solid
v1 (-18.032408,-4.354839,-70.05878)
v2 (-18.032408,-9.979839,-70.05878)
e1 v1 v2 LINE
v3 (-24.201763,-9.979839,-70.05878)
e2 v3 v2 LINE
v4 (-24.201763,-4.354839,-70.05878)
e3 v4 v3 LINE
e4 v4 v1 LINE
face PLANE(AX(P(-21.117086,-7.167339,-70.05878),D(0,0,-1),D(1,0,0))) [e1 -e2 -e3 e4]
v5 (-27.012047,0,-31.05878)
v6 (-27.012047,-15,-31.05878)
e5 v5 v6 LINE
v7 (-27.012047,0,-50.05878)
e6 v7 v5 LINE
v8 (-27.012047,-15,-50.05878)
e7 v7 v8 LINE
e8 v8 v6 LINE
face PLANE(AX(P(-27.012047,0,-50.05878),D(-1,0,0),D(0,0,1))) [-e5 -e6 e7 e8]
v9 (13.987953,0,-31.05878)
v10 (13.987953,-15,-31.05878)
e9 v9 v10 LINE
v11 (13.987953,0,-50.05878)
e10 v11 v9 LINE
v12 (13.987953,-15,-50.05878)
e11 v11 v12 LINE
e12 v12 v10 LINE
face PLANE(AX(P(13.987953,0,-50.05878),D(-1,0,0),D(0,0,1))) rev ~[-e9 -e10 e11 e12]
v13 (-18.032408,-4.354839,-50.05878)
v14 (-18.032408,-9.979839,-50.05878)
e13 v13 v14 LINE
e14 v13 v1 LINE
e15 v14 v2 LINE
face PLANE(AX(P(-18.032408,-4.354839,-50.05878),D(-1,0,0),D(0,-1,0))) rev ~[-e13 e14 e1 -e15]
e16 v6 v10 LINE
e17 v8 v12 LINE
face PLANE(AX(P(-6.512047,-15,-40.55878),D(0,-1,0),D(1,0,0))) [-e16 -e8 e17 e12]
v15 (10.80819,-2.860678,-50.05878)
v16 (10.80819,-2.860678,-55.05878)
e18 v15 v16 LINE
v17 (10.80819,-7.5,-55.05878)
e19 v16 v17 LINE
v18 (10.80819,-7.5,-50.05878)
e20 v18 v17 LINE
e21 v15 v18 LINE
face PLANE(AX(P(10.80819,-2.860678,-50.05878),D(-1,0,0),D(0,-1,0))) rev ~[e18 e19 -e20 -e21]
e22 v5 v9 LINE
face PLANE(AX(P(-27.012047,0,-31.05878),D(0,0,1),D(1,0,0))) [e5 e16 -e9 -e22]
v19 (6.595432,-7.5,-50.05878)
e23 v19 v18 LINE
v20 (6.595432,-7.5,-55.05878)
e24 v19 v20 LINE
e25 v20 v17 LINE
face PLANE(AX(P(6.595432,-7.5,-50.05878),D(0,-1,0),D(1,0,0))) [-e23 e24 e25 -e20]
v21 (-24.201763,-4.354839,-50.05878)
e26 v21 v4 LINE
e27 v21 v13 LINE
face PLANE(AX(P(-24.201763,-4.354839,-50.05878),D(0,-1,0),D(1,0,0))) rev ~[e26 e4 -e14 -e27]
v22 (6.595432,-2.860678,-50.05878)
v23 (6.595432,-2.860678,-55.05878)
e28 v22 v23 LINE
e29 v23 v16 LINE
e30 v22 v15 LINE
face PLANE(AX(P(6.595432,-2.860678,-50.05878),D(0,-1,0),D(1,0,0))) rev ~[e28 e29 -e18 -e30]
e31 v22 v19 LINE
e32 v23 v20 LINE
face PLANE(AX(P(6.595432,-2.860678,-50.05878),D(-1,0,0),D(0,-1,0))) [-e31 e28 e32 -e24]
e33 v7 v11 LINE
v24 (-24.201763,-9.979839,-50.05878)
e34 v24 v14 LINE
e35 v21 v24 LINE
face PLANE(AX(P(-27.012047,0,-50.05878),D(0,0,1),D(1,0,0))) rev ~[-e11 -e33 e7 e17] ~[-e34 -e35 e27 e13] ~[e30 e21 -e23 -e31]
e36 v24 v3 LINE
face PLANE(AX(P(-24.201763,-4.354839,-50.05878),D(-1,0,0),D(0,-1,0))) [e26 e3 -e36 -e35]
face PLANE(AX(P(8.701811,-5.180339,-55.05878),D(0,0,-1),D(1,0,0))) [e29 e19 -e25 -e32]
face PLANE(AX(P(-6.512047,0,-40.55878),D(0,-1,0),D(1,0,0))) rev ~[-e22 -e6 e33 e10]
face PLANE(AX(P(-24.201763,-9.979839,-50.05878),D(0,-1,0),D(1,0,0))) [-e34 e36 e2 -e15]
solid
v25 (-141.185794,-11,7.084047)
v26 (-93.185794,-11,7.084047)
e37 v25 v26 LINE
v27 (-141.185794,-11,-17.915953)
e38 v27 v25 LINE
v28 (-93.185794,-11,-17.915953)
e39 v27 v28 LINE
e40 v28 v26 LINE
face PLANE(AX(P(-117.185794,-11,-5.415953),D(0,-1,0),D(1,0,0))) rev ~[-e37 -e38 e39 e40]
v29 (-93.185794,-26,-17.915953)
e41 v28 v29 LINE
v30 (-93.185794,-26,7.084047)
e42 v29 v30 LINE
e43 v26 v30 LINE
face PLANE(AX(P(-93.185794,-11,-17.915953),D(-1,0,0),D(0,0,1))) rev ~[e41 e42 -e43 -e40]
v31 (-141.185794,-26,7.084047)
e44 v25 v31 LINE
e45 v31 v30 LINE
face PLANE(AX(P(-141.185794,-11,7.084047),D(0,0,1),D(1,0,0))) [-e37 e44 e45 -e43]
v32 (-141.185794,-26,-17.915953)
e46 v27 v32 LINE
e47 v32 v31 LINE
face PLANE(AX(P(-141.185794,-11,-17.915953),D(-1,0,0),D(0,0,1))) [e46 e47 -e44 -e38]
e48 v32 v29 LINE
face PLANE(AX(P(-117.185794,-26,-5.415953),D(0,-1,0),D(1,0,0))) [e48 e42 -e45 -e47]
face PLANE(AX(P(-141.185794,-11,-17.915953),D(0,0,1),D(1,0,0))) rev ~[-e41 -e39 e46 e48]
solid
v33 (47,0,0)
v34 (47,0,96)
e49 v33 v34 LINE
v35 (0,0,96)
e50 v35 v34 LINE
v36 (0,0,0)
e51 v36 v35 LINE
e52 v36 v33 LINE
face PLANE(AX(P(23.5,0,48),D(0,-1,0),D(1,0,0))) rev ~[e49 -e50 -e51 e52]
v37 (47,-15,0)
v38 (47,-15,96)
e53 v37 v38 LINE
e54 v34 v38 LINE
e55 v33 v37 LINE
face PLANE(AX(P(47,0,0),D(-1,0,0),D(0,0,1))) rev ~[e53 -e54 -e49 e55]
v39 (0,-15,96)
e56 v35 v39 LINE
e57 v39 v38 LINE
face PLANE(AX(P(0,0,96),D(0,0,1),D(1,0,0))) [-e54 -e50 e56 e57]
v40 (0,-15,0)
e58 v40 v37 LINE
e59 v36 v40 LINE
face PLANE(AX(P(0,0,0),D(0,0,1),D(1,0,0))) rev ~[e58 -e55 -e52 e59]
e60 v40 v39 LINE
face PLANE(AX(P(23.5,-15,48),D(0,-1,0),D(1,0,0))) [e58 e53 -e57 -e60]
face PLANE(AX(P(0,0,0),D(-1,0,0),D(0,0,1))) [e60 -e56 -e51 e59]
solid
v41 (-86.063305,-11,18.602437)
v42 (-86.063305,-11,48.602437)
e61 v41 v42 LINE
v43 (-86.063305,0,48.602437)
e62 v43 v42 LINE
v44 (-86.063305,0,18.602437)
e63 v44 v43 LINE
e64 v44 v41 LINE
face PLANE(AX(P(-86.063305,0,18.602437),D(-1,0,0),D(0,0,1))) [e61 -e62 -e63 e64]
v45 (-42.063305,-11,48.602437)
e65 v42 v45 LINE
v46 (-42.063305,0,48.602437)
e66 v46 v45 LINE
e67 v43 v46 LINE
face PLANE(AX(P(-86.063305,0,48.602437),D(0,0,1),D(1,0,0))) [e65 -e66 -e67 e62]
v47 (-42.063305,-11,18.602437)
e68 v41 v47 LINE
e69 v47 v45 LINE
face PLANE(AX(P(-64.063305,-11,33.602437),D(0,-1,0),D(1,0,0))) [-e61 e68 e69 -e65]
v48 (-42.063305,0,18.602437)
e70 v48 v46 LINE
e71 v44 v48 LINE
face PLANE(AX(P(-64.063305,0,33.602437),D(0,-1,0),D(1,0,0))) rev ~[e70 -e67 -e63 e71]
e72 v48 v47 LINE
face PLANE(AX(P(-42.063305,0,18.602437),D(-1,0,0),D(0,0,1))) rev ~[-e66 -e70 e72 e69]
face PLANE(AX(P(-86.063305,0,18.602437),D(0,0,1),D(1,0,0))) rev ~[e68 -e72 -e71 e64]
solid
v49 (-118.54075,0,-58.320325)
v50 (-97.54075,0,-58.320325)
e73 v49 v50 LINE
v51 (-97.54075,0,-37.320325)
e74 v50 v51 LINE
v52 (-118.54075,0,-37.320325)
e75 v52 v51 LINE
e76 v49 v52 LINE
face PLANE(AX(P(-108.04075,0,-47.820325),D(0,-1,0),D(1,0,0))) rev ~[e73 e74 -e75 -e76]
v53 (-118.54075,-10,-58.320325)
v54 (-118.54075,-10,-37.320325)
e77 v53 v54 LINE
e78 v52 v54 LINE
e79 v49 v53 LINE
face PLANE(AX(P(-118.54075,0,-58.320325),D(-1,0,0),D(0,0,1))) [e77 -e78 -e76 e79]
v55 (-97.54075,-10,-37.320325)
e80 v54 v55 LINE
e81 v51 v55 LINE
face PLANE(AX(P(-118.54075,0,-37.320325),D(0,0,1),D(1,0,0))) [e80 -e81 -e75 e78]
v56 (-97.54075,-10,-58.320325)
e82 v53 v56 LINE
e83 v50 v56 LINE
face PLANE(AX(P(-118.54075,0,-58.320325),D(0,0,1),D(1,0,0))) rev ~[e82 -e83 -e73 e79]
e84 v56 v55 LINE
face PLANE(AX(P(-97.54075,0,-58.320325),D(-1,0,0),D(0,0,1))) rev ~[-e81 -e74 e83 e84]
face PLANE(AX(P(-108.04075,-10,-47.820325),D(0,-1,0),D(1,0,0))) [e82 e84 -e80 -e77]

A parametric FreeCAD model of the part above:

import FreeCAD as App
import Part
import Sketcher
from FreeCAD import Vector
Q = App.Units.Quantity


def add_polygon(sketch, points):
    """Adds a closed chain of lines whose ends are joined by coincident constraints."""
    first, n = sketch.GeometryCount, len(points)
    for a, b in zip(points, points[1:] + points[:1]):
        sketch.addGeometry(Part.LineSegment(App.Vector(*a, 0), App.Vector(*b, 0)), False)
    for i in range(n):
        sketch.addConstraint(Sketcher.Constraint("Coincident", first + i, 2, first + (i + 1) % n, 1))

doc = App.newDocument("Part")
body = doc.addObject("PartDesign::Body", "Body")

# Sketch on XZ plane
sketch1 = body.newObject("Sketcher::SketchObject", "Sketch")
sketch1.AttachmentSupport = (doc.getObject("XZ_Plane"), [""])
sketch1.MapMode = "FlatFace"
add_polygon(sketch1, [(0, 96), (0, 0), (47, 0), (47, 96)])  # lines 0-3
sketch1.addConstraint([
    Sketcher.Constraint("Vertical", 0),
    Sketcher.Constraint("Horizontal", 1),
    Sketcher.Constraint("Vertical", 2),
    Sketcher.Constraint("Horizontal", 3),
    Sketcher.Constraint("Coincident", 0, 2, -1, 1),
    Sketcher.Constraint("DistanceX", 1, 1, 1, 2, Q("47 mm")),
    Sketcher.Constraint("DistanceY", 0, 2, 0, 1, Q("96 mm")),
])
pad1 = body.newObject("PartDesign::Pad", "Pad")
pad1.Profile = sketch1
pad1.Length = 15
body2 = doc.addObject("PartDesign::Body", "Body001")

# Sketch on XZ plane
sketch2 = body2.newObject("Sketcher::SketchObject", "Sketch001")
sketch2.AttachmentSupport = (doc.getObject("XZ_Plane001"), [""])
sketch2.MapMode = "FlatFace"
add_polygon(sketch2, [(-86, 49), (-86, 19), (-42, 19), (-42, 49)])  # lines 0-3
sketch2.addConstraint([
    Sketcher.Constraint("Vertical", 0),
    Sketcher.Constraint("Horizontal", 1),
    Sketcher.Constraint("Vertical", 2),
    Sketcher.Constraint("Horizontal", 3),
    Sketcher.Constraint("DistanceX", 1, 1, 1, 2, Q("44 mm")),
    Sketcher.Constraint("DistanceY", 0, 2, 0, 1, Q("30 mm")),
    Sketcher.Constraint("DistanceX", 0, 2, -1, 1, Q("86.063305 mm")),
    Sketcher.Constraint("DistanceY", -1, 1, 0, 2, Q("18.602437 mm")),
])
pad2 = body2.newObject("PartDesign::Pad", "Pad001")
pad2.Profile = sketch2
pad2.Length = 11
body3 = doc.addObject("PartDesign::Body", "Body002")

# Sketch on XZ plane
sketch3 = body3.newObject("Sketcher::SketchObject", "Sketch002")
sketch3.AttachmentSupport = (doc.getObject("XZ_Plane002"), [""])
sketch3.MapMode = "FlatFace"
sketch3.AttachmentOffset = App.Placement(Vector(0, 0, 11), App.Rotation())
add_polygon(sketch3, [(-141, 7), (-141, -18), (-93, -18), (-93, 7)])  # lines 0-3
sketch3.addConstraint([
    Sketcher.Constraint("Vertical", 0),
    Sketcher.Constraint("Horizontal", 1),
    Sketcher.Constraint("Vertical", 2),
    Sketcher.Constraint("Horizontal", 3),
    Sketcher.Constraint("DistanceX", 1, 1, 1, 2, Q("48 mm")),
    Sketcher.Constraint("DistanceY", 0, 2, 0, 1, Q("25 mm")),
    Sketcher.Constraint("DistanceX", 0, 2, -1, 1, Q("141.185794 mm")),
    Sketcher.Constraint("DistanceY", 0, 2, -1, 1, Q("17.915953 mm")),
])
pad3 = body3.newObject("PartDesign::Pad", "Pad002")
pad3.Profile = sketch3
pad3.Length = 15
body4 = doc.addObject("PartDesign::Body", "Body003")

# Sketch on XZ plane
sketch4 = body4.newObject("Sketcher::SketchObject", "Sketch003")
sketch4.AttachmentSupport = (doc.getObject("XZ_Plane003"), [""])
sketch4.MapMode = "FlatFace"
add_polygon(sketch4, [(-119, -37), (-119, -58), (-98, -58), (-98, -37)])  # lines 0-3
sketch4.addConstraint([
    Sketcher.Constraint("Vertical", 0),
    Sketcher.Constraint("Horizontal", 1),
    Sketcher.Constraint("Vertical", 2),
    Sketcher.Constraint("Horizontal", 3),
    Sketcher.Constraint("Equal", 3, 0),
    Sketcher.Constraint("DistanceX", 1, 1, 1, 2, Q("21 mm")),
    Sketcher.Constraint("DistanceX", 0, 2, -1, 1, Q("118.54075 mm")),
    Sketcher.Constraint("DistanceY", 0, 2, -1, 1, Q("58.320325 mm")),
])
pad4 = body4.newObject("PartDesign::Pad", "Pad003")
pad4.Profile = sketch4
pad4.Length = 10
body5 = doc.addObject("PartDesign::Body", "Body004")

# Sketch on XZ plane
sketch5 = body5.newObject("Sketcher::SketchObject", "Sketch004")
sketch5.AttachmentSupport = (doc.getObject("XZ_Plane004"), [""])
sketch5.MapMode = "FlatFace"
add_polygon(sketch5, [(-27, -31), (-27, -50), (14, -50), (14, -31)])  # lines 0-3
sketch5.addConstraint([
    Sketcher.Constraint("Vertical", 0),
    Sketcher.Constraint("Horizontal", 1),
    Sketcher.Constraint("Vertical", 2),
    Sketcher.Constraint("Horizontal", 3),
    Sketcher.Constraint("DistanceX", 1, 1, 1, 2, Q("41 mm")),
    Sketcher.Constraint("DistanceY", 0, 2, 0, 1, Q("19 mm")),
    Sketcher.Constraint("DistanceY", 0, 2, -1, 1, Q("50.05878 mm")),
    Sketcher.Constraint("DistanceX", 0, 2, -1, 1, Q("27.012047 mm")),
])
pad5 = body5.newObject("PartDesign::Pad", "Pad004")
pad5.Profile = sketch5
pad5.Length = 15

# Sketch on XY plane
sketch6 = body5.newObject("Sketcher::SketchObject", "Sketch005")
sketch6.AttachmentSupport = (doc.getObject("XY_Plane004"), [""])
sketch6.MapMode = "FlatFace"
sketch6.AttachmentOffset = App.Placement(Vector(0, 0, -50.05878), App.Rotation())
add_polygon(sketch6, [(-24, -10), (-24, -4), (-18, -4), (-18, -10)])  # lines 0-3
sketch6.addConstraint([
    Sketcher.Constraint("Vertical", 0),
    Sketcher.Constraint("Horizontal", 1),
    Sketcher.Constraint("Vertical", 2),
    Sketcher.Constraint("Horizontal", 3),
    Sketcher.Constraint("DistanceY", 0, 1, 0, 2, Q("5.625 mm")),
    Sketcher.Constraint("DistanceX", 1, 1, 1, 2, Q("6.169355 mm")),
    Sketcher.Constraint("DistanceY", 0, 2, -1, 1, Q("4.354839 mm")),
    Sketcher.Constraint("DistanceX", 1, 2, -1, 1, Q("18.032408 mm")),
])
pad6 = body5.newObject("PartDesign::Pad", "Pad005")
pad6.Profile = sketch6
pad6.Length = 20
pad6.Reversed = True

# Sketch on XY plane
sketch7 = body5.newObject("Sketcher::SketchObject", "Sketch006")
sketch7.AttachmentSupport = (doc.getObject("XY_Plane004"), [""])
sketch7.MapMode = "FlatFace"
sketch7.AttachmentOffset = App.Placement(Vector(0, 0, -50.05878), App.Rotation())
add_polygon(sketch7, [(6.6, -7.5), (6.6, -2.9), (10.8, -2.9), (10.8, -7.5)])  # lines 0-3
sketch7.addConstraint([
    Sketcher.Constraint("Vertical", 0),
    Sketcher.Constraint("Horizontal", 1),
    Sketcher.Constraint("Vertical", 2),
    Sketcher.Constraint("Horizontal", 3),
    Sketcher.Constraint("DistanceY", 2, 2, -1, 1, Q("7.5 mm")),
    Sketcher.Constraint("DistanceX", 1, 1, 1, 2, Q("4.212758 mm")),
    Sketcher.Constraint("DistanceY", 0, 1, 0, 2, Q("4.639322 mm")),
    Sketcher.Constraint("DistanceX", -1, 1, 0, 2, Q("6.595432 mm")),
])
pad7 = body5.newObject("PartDesign::Pad", "Pad006")
pad7.Profile = sketch7
pad7.Length = 5
pad7.Reversed = True

doc.recompute()
